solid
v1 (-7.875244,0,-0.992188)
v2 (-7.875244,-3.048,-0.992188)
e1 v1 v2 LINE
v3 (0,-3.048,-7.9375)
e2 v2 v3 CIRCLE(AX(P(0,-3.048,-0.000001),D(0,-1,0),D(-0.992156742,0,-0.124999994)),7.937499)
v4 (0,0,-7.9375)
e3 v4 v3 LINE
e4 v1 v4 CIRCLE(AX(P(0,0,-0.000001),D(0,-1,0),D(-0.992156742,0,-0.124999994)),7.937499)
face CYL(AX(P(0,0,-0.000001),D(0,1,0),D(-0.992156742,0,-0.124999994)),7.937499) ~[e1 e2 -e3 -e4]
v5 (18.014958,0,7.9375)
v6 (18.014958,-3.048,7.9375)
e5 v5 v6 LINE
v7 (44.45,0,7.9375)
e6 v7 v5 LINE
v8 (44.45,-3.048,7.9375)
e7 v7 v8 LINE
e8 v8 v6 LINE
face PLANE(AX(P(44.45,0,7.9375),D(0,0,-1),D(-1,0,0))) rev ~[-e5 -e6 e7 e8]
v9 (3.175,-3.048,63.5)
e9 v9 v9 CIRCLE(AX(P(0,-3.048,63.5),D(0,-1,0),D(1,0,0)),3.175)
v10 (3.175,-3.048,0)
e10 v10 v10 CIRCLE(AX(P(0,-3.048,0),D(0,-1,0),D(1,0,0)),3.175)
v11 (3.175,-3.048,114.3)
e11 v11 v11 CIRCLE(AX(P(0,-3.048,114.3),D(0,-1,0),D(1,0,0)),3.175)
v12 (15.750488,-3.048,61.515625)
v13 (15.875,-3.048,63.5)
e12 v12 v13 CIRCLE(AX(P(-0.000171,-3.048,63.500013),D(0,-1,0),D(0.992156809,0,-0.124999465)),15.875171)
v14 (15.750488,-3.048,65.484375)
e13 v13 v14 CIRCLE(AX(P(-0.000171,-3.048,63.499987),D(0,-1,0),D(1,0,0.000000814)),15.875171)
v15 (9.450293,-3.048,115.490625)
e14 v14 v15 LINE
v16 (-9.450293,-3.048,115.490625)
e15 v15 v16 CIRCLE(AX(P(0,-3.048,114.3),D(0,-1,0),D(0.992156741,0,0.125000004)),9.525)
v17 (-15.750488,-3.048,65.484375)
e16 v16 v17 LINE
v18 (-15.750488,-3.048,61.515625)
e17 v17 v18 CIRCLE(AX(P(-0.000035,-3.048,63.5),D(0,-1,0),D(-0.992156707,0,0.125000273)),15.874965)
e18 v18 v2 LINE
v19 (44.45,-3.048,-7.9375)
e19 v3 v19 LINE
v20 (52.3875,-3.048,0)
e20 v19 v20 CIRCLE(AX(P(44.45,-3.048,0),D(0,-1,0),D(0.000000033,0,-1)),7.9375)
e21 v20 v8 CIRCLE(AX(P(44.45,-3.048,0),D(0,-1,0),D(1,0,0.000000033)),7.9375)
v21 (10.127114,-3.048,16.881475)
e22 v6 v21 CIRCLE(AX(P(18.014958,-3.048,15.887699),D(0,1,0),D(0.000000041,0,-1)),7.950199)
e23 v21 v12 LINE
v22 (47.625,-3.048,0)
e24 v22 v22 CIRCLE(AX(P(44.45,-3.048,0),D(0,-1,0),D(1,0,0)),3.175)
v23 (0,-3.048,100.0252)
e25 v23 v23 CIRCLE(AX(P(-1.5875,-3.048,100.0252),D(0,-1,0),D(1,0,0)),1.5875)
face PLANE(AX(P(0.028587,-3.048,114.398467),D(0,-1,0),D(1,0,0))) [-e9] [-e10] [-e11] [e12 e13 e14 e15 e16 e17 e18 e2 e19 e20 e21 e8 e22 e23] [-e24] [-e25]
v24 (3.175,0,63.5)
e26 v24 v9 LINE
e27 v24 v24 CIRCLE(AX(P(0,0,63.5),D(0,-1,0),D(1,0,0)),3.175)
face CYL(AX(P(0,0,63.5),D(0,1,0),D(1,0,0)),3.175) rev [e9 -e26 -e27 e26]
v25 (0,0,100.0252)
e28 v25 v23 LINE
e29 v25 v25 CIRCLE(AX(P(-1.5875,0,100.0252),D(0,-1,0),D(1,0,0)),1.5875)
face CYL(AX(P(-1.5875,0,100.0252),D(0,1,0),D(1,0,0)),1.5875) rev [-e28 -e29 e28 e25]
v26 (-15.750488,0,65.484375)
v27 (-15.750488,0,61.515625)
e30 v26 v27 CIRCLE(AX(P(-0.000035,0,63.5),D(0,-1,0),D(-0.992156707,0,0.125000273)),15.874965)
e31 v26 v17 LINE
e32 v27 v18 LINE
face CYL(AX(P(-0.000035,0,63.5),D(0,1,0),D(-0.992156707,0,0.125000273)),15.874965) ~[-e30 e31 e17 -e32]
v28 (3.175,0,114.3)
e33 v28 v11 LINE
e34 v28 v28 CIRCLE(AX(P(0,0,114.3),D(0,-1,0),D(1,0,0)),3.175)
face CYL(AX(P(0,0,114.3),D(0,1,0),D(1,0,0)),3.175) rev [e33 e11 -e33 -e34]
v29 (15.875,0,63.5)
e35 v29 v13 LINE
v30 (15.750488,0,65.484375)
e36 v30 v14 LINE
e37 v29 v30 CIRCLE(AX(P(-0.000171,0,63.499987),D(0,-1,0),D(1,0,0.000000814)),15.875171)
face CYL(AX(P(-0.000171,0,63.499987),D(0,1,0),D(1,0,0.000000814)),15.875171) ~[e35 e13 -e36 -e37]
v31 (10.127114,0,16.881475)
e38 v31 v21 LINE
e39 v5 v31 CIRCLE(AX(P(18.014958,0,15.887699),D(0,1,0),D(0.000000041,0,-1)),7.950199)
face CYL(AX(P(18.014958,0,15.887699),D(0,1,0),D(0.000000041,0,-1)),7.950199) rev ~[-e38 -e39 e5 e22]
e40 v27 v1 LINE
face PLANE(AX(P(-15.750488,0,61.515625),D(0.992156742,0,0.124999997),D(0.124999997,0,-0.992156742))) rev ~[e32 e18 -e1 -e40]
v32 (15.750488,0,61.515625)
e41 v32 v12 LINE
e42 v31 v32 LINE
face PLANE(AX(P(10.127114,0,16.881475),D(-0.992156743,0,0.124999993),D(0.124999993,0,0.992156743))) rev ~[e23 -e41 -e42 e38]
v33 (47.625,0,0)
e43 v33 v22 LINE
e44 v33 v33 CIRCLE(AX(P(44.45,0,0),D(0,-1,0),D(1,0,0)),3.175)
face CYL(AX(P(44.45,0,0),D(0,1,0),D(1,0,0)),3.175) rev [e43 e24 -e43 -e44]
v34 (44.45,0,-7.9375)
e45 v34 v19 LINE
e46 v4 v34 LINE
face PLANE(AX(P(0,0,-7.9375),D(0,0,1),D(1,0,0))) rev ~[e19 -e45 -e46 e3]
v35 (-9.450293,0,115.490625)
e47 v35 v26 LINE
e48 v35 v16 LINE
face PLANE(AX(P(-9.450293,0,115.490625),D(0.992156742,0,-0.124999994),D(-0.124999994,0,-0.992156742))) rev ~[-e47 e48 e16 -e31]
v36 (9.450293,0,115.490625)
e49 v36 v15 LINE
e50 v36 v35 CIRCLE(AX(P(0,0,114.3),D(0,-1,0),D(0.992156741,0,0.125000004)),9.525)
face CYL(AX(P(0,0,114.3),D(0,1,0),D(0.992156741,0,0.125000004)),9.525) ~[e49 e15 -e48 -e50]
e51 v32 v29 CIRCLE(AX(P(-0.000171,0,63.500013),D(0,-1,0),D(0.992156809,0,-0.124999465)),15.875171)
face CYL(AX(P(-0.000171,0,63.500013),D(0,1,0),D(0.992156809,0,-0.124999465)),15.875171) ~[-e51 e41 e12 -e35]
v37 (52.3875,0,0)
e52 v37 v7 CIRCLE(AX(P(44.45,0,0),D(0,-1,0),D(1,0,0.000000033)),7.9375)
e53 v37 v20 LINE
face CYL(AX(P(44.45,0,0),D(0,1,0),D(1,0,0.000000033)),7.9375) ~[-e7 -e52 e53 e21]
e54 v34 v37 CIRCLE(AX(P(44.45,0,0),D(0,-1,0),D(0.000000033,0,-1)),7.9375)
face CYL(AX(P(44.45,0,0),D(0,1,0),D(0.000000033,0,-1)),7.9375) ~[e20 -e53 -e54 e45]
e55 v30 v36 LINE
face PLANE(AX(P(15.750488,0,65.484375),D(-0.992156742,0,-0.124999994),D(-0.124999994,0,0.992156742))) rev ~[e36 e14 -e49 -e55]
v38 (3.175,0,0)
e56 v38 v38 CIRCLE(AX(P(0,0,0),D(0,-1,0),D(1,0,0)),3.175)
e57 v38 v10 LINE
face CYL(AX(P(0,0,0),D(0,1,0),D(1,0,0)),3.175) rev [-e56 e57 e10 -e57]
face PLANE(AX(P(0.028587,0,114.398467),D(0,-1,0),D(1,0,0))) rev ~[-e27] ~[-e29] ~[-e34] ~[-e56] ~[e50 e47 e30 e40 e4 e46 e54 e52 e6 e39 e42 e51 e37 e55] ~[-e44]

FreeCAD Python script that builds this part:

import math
import FreeCAD as App
import Part
import Sketcher

V = App.Vector
Q = App.Units.Quantity

doc = App.newDocument("Part")
body = doc.addObject("PartDesign::Body", "Body")

# Sketch on XZ plane
sketch1 = doc.addObject("Sketcher::SketchObject", "Sketch")
body.addObject(sketch1)
sketch1.AttachmentSupport = (doc.XZ_Plane, [""])
sketch1.MapMode = "FlatFace"
sketch1.addGeometry([
    Part.ArcOfCircle(Part.Circle(V(0, 114.3, 0), V(0, 0, 1), 9.525), math.radians(7.180756), math.radians(172.819244)),  # 0
    Part.LineSegment(V(-9.450293, 115.490625, 0), V(-15.750488, 65.484375, 0)),  # 1
    Part.ArcOfCircle(Part.Circle(V(-0.000035, 63.5, 0), V(0, 0, 1), 15.874965), math.radians(172.819228), math.radians(187.180772)),  # 2
    Part.LineSegment(V(-15.750488, 61.515625, 0), V(-7.875244, -0.992188, 0)),  # 3
    Part.ArcOfCircle(Part.Circle(V(0, -0.000001, 0), V(0, 0, 1), 7.937499), math.radians(-172.819245), math.radians(-89.999997)),  # 4
    Part.LineSegment(V(0, -7.9375, 0), V(44.45, -7.9375, 0)),  # 5
    Part.ArcOfCircle(Part.Circle(V(44.45, 0, 0), V(0, 0, 1), 7.9375), math.radians(-89.999998), math.radians(-0.000002)),  # 6
    Part.ArcOfCircle(Part.Circle(V(44.45, 0, 0), V(0, 0, 1), 7.9375), math.radians(0.000002), math.radians(89.999998)),  # 7
    Part.LineSegment(V(44.45, 7.9375, 0), V(18.014958, 7.9375, 0)),  # 8
    Part.ArcOfCircle(Part.Circle(V(18.014958, 15.887699, 0), V(0, 0, 1), 7.950199), math.radians(172.819238), math.radians(270.000002)),  # 9
    Part.LineSegment(V(10.127114, 16.881475, 0), V(15.750488, 61.515625, 0)),  # 10
    Part.ArcOfCircle(Part.Circle(V(-0.000171, 63.500013, 0), V(0, 0, 1), 15.875171), math.radians(-7.180725), math.radians(-0.000047)),  # 11
    Part.ArcOfCircle(Part.Circle(V(-0.000171, 63.499987, 0), V(0, 0, 1), 15.875171), math.radians(0.000047), math.radians(7.180725)),  # 12
    Part.LineSegment(V(15.750488, 65.484375, 0), V(9.450293, 115.490625, 0)),  # 13
    Part.Circle(V(0, 0, 0), V(0, 0, 1), 3.175),  # 14
    Part.Circle(V(44.45, 0, 0), V(0, 0, 1), 3.175),  # 15
    Part.Circle(V(0, 63.5, 0), V(0, 0, 1), 3.175),  # 16
    Part.Circle(V(-1.5875, 100.0252, 0), V(0, 0, 1), 1.5875),  # 17
    Part.Circle(V(0, 114.3, 0), V(0, 0, 1), 3.175),  # 18
], False)
sketch1.addConstraint([
    Sketcher.Constraint("Coincident", 0, 2, 1, 1),
    Sketcher.Constraint("Coincident", 1, 2, 2, 1),
    Sketcher.Constraint("Coincident", 2, 2, 3, 1),
    Sketcher.Constraint("Coincident", 3, 2, 4, 1),
    Sketcher.Constraint("Coincident", 4, 2, 5, 1),
    Sketcher.Constraint("Coincident", 5, 2, 6, 1),
    Sketcher.Constraint("Coincident", 6, 2, 7, 1),
    Sketcher.Constraint("Coincident", 7, 2, 8, 1),
    Sketcher.Constraint("Coincident", 8, 2, 9, 2),
    Sketcher.Constraint("Coincident", 9, 1, 10, 1),
    Sketcher.Constraint("Coincident", 10, 2, 11, 1),
    Sketcher.Constraint("Coincident", 11, 2, 12, 1),
    Sketcher.Constraint("Coincident", 12, 2, 13, 1),
    Sketcher.Constraint("Coincident", 13, 2, 0, 1),
    Sketcher.Constraint("Horizontal", 5),
    Sketcher.Constraint("Horizontal", 8),
    Sketcher.Constraint("Coincident", 4, 3, -1, 1),
    Sketcher.Constraint("Coincident", 14, 3, -1, 1),
    Sketcher.Constraint("Coincident", 7, 3, 6, 3),
    Sketcher.Constraint("Coincident", 15, 3, 6, 3),
    Sketcher.Constraint("Coincident", 18, 3, 0, 3),
    Sketcher.Constraint("PointOnObject", 0, 3, -2),
    Sketcher.Constraint("PointOnObject", 6, 3, -1),
    Sketcher.Constraint("PointOnObject", 16, 3, -2),
    Sketcher.Constraint("PointOnObject", 4, 2, -2),
    Sketcher.Constraint("PointOnObject", 6, 2, -1),
    Sketcher.Constraint("Diameter", 14, Q("0.25 in")),
    Sketcher.Constraint("Diameter", 15, Q("0.25 in")),
    Sketcher.Constraint("Diameter", 16, Q("0.25 in")),
    Sketcher.Constraint("Diameter", 18, Q("0.25 in")),
    Sketcher.Constraint("Diameter", 17, Q("0.125 in")),
    Sketcher.Constraint("Radius", 0, Q("0.375 in")),
    Sketcher.Constraint("Radius", 4, Q("0.3125 in")),
    Sketcher.Constraint("Radius", 9, Q("0.313 in")),
    Sketcher.Constraint("DistanceY", 2, 3, 0, 3, Q("2 in")),
    Sketcher.Constraint("DistanceY", 16, 3, 0, 3, Q("2 in")),
    Sketcher.Constraint("DistanceX", 5, 1, 5, 2, Q("1.75 in")),
    Sketcher.Constraint("DistanceY", -1, 1, 0, 3, Q("4.5 in")),
    Sketcher.Constraint("DistanceY", -1, 1, 11, 2, Q("2.5 in")),
    Sketcher.Constraint("DistanceX", -1, 1, 6, 3, Q("1.75 in")),
    Sketcher.Constraint("DistanceX", -1, 1, 7, 2, Q("1.75 in")),
    Sketcher.Constraint("DistanceX", 17, 3, -1, 1, Q("0.0625 in")),
    Sketcher.Constraint("DistanceY", -1, 1, 17, 3, Q("3.938 in")),
    Sketcher.Constraint("DistanceY", -1, 1, 0, 2, Q("4.546875 in")),
    Sketcher.Constraint("DistanceY", -1, 1, 1, 2, Q("2.578125 in")),
    Sketcher.Constraint("DistanceY", -1, 1, 2, 2, Q("2.421875 in")),
    Sketcher.Constraint("DistanceY", -1, 1, 10, 2, Q("2.421875 in")),
    Sketcher.Constraint("DistanceX", -1, 1, 11, 2, Q("0.625 in")),
    Sketcher.Constraint("DistanceY", -1, 1, 12, 2, Q("2.578125 in")),
    Sketcher.Constraint("DistanceY", -1, 1, 13, 2, Q("4.546875 in")),
    Sketcher.Constraint("Radius", 11, Q("15.875171 mm")),
    Sketcher.Constraint("Radius", 12, Q("15.875171 mm")),
    Sketcher.Constraint("Radius", 2, Q("15.874965 mm")),
    Sketcher.Constraint("DistanceX", 3, 2, 9, 3, Q("25.890202 mm")),
    Sketcher.Constraint("DistanceX", 8, 2, 8, 1, Q("26.435042 mm")),
    Sketcher.Constraint("DistanceX", 1, 2, -1, 1, Q("15.750488 mm")),
    Sketcher.Constraint("DistanceX", -1, 1, 10, 2, Q("15.750488 mm")),
    Sketcher.Constraint("DistanceX", -1, 1, 12, 2, Q("15.750488 mm")),
    Sketcher.Constraint("DistanceX", 4, 3, 9, 3, Q("18.014958 mm")),
    Sketcher.Constraint("Distance", 10, Q("44.986995 mm")),
])
pad1 = doc.addObject("PartDesign::Pad", "Pad")
body.addObject(pad1)
pad1.Profile = sketch1
pad1.Length = Q("0.12 in")

doc.recompute()
